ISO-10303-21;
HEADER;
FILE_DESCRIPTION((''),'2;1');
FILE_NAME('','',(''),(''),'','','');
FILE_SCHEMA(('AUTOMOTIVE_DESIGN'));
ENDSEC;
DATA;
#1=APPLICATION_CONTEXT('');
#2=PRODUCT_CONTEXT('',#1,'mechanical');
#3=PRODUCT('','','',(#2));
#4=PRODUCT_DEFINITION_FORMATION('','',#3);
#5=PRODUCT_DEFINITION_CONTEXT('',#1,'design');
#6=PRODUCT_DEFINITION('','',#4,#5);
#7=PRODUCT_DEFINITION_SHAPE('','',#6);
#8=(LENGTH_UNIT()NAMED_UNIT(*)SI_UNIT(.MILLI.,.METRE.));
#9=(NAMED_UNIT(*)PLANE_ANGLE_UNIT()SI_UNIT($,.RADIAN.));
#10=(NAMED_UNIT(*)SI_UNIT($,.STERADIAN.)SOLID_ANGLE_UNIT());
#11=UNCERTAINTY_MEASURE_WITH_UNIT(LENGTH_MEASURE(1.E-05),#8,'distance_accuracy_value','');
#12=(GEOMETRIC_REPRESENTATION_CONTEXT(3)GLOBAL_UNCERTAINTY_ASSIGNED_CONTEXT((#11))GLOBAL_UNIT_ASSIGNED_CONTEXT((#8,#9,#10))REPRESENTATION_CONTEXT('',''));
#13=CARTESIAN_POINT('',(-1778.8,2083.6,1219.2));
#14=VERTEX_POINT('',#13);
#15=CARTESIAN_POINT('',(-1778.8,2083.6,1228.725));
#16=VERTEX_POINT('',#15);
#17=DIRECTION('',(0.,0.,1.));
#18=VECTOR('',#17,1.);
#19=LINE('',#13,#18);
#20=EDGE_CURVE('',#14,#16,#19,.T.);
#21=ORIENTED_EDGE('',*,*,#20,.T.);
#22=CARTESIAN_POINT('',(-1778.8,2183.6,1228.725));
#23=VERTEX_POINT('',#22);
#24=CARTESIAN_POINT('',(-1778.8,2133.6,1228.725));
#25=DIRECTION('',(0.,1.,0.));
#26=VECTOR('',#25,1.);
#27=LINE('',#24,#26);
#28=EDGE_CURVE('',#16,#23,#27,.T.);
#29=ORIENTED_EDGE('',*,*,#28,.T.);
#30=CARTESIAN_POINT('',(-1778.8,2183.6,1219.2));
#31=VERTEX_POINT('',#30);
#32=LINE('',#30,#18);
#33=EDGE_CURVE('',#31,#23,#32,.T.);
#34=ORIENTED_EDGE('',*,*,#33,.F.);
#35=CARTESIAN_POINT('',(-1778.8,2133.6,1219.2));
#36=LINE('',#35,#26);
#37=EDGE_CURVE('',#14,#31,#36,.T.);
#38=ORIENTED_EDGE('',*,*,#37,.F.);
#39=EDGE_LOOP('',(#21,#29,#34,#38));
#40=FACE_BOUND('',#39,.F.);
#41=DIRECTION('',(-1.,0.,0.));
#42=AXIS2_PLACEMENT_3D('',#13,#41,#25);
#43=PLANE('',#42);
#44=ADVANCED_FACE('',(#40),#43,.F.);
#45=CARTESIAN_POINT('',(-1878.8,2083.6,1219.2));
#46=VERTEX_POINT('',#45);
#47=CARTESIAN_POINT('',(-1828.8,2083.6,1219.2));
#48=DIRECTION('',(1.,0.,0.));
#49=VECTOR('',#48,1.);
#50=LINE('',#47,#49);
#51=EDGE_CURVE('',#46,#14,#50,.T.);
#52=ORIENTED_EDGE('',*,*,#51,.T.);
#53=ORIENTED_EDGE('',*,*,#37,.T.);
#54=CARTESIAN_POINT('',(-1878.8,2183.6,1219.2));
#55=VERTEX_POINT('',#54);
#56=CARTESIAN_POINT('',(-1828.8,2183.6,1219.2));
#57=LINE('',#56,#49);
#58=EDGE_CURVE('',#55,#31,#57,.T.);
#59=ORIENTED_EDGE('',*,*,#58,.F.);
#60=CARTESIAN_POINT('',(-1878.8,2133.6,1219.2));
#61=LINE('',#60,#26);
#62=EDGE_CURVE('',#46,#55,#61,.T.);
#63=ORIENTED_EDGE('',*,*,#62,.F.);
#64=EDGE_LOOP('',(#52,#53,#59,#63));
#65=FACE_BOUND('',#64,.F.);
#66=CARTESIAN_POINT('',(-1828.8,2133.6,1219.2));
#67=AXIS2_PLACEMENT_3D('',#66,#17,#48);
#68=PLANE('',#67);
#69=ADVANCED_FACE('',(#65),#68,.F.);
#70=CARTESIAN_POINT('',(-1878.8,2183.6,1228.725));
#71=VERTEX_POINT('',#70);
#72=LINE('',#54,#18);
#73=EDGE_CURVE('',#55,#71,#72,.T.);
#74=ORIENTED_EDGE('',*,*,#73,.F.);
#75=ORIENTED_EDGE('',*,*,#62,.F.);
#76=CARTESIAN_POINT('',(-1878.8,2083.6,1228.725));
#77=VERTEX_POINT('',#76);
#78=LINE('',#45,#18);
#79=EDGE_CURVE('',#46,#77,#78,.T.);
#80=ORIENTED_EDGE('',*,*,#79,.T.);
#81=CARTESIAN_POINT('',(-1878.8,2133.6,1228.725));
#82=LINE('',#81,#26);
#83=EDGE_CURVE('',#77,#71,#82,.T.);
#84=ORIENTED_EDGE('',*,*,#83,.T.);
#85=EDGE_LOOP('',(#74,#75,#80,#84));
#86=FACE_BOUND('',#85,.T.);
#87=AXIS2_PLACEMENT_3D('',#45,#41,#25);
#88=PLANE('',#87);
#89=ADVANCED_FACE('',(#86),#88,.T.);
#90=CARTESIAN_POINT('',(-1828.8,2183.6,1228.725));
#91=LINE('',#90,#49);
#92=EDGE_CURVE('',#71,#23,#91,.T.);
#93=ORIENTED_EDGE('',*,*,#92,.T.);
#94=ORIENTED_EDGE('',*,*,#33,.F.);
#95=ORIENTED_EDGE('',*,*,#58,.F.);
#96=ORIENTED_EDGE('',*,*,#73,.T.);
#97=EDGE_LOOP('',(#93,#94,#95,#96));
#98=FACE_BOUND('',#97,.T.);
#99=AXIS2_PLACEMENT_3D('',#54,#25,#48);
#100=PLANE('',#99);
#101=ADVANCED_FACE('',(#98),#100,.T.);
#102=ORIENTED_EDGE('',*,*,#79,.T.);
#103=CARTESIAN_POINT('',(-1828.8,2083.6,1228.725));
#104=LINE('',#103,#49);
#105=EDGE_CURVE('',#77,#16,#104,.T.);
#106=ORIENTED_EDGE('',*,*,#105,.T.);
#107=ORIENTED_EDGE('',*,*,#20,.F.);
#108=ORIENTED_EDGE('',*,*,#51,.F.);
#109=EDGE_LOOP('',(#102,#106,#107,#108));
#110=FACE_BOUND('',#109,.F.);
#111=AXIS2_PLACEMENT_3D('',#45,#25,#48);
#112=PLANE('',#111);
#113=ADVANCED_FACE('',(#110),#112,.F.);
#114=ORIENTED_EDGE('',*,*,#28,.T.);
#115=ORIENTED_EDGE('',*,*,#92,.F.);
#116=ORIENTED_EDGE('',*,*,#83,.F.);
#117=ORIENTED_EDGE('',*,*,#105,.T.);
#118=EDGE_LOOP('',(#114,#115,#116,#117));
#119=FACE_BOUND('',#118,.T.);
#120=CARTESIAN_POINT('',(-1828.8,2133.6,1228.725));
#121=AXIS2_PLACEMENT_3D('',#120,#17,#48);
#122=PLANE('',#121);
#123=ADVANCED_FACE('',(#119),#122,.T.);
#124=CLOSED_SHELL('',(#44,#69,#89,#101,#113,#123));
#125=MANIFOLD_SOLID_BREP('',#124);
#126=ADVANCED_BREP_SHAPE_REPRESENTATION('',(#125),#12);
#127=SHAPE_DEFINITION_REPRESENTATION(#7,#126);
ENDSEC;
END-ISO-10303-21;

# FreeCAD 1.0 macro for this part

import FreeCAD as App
import Part
import Sketcher

V = App.Vector

doc = App.newDocument("Part")
params = doc.addObject("Spreadsheet::Sheet", "Params")
for row, (alias, value) in enumerate([
    ("sketch1_width", "100 mm"),
    ("pad1_length", "9.525 mm"),
], start=1):
    params.set(f"A{row}", alias)
    params.set(f"B{row}", "=" + value)
    params.setAlias(f"B{row}", alias)

body = doc.addObject("PartDesign::Body", "Body")

# Sketch on XY plane
sketch1 = doc.addObject("Sketcher::SketchObject", "Sketch")
body.addObject(sketch1)
sketch1.AttachmentSupport = (doc.XY_Plane, [""])
sketch1.MapMode = "FlatFace"
sketch1.AttachmentOffset = App.Placement(V(0, 0, 1219.2), App.Rotation())
sketch1.addGeometry([
    Part.LineSegment(V(-1879, 2184, 0), V(-1879, 2084, 0)),
    Part.LineSegment(V(-1879, 2084, 0), V(-1779, 2084, 0)),
    Part.LineSegment(V(-1779, 2084, 0), V(-1779, 2184, 0)),
    Part.LineSegment(V(-1779, 2184, 0), V(-1879, 2184, 0)),
], False)
sketch1.addConstraint([
    Sketcher.Constraint("Coincident", 0, 2, 1, 1),
    Sketcher.Constraint("Coincident", 1, 2, 2, 1),
    Sketcher.Constraint("Coincident", 2, 2, 3, 1),
    Sketcher.Constraint("Coincident", 3, 2, 0, 1),
    Sketcher.Constraint("Vertical", 0),
    Sketcher.Constraint("Horizontal", 1),
    Sketcher.Constraint("Vertical", 2),
    Sketcher.Constraint("Horizontal", 3),
    Sketcher.Constraint("Equal", 3, 0),
    Sketcher.Constraint("DistanceX", 1, 1, 1, 2, 100.0),
    Sketcher.Constraint("DistanceX", 0, 2, -1, 1, 1878.8),
    Sketcher.Constraint("DistanceY", -1, 1, 0, 2, 2083.6),
])
sketch1.setExpression("Constraints[9]", "Params.sketch1_width")
pad1 = doc.addObject("PartDesign::Pad", "Pad")
body.addObject(pad1)
pad1.Profile = sketch1
pad1.setExpression("Length", "Params.pad1_length")

doc.recompute()
